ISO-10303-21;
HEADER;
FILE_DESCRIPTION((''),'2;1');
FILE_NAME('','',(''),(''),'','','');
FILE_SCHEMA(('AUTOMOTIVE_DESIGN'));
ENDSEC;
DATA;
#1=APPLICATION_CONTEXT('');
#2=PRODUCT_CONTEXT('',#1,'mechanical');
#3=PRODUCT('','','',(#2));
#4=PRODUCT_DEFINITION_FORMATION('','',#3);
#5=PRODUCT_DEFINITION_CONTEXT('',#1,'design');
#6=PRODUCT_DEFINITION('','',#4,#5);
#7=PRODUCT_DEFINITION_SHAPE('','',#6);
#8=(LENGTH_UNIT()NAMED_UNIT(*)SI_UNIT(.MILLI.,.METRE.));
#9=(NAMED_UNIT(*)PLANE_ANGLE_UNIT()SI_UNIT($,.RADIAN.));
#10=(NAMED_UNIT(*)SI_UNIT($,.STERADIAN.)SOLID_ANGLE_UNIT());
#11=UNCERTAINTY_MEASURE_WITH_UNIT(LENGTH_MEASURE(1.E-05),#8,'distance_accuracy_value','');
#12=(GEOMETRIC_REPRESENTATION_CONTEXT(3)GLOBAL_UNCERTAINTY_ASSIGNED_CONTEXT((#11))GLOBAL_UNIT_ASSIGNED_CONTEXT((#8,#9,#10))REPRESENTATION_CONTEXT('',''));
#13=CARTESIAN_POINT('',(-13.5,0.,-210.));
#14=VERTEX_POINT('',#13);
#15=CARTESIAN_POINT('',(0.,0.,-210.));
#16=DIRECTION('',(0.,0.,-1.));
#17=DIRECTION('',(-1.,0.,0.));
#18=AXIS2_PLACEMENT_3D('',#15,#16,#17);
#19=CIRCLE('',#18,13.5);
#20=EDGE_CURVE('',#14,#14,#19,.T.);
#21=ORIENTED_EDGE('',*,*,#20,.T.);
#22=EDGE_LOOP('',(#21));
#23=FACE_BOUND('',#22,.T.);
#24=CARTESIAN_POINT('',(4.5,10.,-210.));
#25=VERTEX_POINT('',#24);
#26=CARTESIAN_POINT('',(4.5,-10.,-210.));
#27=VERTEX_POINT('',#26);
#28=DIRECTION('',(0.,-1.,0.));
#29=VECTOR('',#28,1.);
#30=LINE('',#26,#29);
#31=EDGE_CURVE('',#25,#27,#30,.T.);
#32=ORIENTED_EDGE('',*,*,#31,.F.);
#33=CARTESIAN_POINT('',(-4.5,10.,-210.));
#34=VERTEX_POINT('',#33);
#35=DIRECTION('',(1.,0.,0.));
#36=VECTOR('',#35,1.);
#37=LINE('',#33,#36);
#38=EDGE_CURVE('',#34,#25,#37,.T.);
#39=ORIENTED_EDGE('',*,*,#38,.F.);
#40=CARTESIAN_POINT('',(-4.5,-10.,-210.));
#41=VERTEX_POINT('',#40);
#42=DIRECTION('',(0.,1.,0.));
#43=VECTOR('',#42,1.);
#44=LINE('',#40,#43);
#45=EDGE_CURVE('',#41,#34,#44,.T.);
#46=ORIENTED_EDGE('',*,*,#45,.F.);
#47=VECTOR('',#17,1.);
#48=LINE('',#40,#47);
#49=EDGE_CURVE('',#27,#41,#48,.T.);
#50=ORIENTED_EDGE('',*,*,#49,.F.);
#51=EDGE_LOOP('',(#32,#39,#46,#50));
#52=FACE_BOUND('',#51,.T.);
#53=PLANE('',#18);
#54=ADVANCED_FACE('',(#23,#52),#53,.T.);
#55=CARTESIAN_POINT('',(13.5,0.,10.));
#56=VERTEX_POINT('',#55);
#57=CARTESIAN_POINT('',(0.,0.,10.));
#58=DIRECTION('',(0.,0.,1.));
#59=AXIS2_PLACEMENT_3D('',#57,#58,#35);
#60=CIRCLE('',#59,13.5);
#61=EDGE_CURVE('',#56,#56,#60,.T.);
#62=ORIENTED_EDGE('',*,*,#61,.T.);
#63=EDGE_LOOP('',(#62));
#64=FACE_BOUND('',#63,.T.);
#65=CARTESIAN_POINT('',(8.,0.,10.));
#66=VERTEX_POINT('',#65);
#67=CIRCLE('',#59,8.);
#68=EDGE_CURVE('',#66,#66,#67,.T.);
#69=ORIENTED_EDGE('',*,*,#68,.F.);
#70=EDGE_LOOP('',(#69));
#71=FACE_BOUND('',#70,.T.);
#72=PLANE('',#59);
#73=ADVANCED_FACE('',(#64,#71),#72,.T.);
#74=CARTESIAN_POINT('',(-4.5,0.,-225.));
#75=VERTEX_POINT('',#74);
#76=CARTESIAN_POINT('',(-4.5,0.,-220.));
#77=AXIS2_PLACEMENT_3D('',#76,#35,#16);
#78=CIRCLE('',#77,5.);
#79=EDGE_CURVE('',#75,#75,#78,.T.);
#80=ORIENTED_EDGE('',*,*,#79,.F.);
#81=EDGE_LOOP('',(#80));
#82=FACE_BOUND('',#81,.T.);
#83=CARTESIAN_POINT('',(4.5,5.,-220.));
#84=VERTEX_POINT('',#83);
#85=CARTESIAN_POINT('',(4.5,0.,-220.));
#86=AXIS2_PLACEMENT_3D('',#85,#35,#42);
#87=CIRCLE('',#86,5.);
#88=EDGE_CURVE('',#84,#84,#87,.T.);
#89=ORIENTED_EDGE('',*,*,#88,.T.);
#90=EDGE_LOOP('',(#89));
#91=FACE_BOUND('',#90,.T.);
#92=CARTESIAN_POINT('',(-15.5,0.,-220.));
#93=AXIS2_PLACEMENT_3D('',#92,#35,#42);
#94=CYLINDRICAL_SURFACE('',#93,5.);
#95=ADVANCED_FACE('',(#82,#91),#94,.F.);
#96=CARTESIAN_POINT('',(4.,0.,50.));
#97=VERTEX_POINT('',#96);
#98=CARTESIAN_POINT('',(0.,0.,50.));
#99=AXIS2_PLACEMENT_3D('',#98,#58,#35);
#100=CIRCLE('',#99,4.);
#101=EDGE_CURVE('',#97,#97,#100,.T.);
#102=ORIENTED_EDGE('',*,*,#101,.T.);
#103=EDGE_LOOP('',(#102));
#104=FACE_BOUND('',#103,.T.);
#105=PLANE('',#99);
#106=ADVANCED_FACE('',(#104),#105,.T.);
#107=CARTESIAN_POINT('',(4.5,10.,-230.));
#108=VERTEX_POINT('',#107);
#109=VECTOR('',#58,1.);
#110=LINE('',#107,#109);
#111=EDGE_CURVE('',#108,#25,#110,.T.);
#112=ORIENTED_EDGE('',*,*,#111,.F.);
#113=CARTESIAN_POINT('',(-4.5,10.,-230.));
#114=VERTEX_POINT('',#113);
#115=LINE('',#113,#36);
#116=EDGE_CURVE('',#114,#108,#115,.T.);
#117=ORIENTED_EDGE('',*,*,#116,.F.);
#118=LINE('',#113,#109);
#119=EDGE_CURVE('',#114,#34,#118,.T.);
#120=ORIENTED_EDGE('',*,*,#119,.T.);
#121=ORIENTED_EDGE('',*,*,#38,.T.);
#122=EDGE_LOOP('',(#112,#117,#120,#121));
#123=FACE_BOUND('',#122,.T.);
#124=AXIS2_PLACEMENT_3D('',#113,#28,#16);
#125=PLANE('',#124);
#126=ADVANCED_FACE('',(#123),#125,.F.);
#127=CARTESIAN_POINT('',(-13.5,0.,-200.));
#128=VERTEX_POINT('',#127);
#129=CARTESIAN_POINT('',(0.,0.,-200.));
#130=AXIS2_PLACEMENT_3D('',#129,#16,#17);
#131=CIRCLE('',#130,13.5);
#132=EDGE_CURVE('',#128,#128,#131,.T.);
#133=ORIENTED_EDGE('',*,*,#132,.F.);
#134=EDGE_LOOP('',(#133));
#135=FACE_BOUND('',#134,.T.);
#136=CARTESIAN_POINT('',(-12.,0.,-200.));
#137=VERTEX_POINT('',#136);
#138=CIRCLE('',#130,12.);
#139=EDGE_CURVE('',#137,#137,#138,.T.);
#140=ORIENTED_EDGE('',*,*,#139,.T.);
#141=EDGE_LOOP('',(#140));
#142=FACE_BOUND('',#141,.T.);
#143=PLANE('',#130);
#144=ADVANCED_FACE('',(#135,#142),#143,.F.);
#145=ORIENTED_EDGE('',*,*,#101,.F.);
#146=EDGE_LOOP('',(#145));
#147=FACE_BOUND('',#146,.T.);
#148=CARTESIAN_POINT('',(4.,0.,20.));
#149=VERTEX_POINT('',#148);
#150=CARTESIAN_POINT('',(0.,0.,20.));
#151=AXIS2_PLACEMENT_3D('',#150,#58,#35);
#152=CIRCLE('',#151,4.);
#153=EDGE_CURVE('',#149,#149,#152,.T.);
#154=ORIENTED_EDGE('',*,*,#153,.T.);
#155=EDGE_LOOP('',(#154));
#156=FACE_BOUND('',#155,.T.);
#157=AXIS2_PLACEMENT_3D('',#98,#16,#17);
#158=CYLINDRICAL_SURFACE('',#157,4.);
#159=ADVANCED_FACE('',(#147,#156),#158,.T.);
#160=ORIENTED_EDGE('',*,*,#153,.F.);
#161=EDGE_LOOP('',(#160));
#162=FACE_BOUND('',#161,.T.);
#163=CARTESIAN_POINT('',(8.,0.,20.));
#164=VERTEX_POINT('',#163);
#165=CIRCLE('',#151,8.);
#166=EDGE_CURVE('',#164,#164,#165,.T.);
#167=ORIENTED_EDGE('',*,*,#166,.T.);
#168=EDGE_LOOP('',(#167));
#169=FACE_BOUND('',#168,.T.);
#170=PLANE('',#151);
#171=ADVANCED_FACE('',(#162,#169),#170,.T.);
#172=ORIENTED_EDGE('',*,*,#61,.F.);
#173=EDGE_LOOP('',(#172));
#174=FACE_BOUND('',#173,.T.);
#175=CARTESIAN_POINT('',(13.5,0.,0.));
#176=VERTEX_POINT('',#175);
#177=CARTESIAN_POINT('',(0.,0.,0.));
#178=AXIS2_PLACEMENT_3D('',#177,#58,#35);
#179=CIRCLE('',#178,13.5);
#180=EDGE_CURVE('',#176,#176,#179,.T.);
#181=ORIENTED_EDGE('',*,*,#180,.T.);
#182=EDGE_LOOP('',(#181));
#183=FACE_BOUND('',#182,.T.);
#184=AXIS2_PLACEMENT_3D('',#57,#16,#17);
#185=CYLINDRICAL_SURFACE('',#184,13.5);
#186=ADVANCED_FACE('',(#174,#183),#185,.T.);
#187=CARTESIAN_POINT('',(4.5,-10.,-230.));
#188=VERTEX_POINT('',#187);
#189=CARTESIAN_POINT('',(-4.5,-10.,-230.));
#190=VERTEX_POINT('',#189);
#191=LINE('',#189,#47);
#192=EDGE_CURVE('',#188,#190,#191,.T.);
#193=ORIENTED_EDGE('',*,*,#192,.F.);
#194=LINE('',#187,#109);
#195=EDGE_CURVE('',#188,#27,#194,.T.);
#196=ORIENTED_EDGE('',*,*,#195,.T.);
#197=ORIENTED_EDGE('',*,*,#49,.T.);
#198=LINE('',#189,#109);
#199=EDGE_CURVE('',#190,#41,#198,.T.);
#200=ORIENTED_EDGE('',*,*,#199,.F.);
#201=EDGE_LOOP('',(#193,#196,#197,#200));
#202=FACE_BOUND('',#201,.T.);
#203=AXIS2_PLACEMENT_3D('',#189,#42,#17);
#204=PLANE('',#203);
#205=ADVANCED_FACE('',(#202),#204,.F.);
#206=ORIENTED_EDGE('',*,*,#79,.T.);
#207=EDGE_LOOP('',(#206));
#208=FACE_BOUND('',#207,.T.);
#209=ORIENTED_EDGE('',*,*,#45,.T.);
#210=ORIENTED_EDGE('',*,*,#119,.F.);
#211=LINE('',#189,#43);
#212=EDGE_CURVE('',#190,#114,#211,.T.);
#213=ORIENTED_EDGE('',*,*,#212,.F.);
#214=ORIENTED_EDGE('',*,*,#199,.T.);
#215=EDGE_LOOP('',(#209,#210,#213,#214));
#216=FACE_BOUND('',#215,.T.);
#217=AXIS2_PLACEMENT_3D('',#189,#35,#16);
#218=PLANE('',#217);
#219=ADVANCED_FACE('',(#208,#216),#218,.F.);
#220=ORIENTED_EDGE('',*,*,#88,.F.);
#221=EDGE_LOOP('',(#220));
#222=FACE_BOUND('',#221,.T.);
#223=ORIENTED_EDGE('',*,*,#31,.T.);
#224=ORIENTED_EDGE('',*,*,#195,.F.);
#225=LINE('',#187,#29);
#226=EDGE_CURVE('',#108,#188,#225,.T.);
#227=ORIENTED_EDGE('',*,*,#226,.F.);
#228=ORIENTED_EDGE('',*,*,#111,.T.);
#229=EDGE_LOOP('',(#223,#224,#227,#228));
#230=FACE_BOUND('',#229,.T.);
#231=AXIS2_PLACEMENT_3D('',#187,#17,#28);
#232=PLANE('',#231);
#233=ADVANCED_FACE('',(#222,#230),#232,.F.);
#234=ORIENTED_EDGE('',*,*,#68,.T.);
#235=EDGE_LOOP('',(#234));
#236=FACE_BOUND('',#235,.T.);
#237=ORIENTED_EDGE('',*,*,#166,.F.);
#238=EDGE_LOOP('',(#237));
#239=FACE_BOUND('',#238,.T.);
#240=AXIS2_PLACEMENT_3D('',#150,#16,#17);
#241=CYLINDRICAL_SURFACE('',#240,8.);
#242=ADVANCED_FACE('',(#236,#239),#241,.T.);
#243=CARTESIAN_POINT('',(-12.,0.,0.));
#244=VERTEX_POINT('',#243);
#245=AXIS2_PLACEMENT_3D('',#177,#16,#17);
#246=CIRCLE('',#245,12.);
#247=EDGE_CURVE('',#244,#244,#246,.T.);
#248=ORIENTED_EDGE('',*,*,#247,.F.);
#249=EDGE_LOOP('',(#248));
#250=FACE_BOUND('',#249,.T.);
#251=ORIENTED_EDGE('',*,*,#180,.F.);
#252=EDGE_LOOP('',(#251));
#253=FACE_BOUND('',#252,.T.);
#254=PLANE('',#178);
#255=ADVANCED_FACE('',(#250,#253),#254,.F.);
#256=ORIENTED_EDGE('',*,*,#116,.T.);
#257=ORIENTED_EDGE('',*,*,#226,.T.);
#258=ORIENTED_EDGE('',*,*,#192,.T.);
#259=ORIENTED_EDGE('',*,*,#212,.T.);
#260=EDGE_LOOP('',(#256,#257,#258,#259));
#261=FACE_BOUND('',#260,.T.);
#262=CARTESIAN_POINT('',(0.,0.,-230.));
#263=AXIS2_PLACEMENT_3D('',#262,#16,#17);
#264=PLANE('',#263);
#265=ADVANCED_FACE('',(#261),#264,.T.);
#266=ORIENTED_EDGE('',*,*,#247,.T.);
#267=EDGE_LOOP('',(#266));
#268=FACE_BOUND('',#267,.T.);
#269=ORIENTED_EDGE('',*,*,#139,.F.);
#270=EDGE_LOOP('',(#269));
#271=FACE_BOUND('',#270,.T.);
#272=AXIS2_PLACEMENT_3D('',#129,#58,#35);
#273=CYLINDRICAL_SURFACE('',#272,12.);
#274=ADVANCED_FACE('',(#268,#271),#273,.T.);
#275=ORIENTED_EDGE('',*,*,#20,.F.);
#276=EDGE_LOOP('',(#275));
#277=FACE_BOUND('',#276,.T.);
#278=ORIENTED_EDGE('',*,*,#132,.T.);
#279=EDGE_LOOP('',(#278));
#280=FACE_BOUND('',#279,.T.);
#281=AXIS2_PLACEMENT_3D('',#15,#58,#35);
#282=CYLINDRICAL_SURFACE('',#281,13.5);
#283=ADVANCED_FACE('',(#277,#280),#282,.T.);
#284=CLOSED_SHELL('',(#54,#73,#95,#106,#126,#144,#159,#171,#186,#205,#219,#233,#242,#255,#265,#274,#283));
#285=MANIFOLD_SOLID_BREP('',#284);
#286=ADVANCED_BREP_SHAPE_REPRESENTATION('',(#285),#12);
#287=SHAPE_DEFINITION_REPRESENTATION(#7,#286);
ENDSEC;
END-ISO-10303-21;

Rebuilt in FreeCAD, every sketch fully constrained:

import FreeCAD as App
import Part
import Sketcher

V = App.Vector
Q = App.Units.Quantity


def add_polygon(sketch, points):
    """Adds a closed chain of lines whose ends are joined by coincident constraints."""
    first, n = sketch.GeometryCount, len(points)
    for a, b in zip(points, points[1:] + points[:1]):
        sketch.addGeometry(Part.LineSegment(App.Vector(*a, 0), App.Vector(*b, 0)), False)
    for i in range(n):
        sketch.addConstraint(Sketcher.Constraint("Coincident", first + i, 2, first + (i + 1) % n, 1))

doc = App.newDocument("Part")
body = doc.addObject("PartDesign::Body", "Body")

sketch1 = doc.addObject("Sketcher::SketchObject", "Sketch")
body.addObject(sketch1)
sketch1.AttachmentSupport = (doc.XY_Plane, [""])
sketch1.MapMode = "FlatFace"
sketch1.addGeometry(Part.Circle(V(0, 0, 0), V(0, 0, 1), 13.5), False)
sketch1.addConstraint([
    Sketcher.Constraint("Coincident", 0, 3, -1, 1),
    Sketcher.Constraint("Diameter", 0, Q("27 mm")),
])
pad1 = doc.addObject("PartDesign::Pad", "Pad")
body.addObject(pad1)
pad1.Profile = sketch1
pad1.Length = 10

sketch2 = doc.addObject("Sketcher::SketchObject", "Sketch001")
body.addObject(sketch2)
sketch2.AttachmentSupport = (doc.XY_Plane, [""])
sketch2.MapMode = "FlatFace"
sketch2.AttachmentOffset = App.Placement(V(0, 0, 10), App.Rotation())
sketch2.addGeometry(Part.Circle(V(0, 0, 0), V(0, 0, 1), 8), False)
sketch2.addConstraint([
    Sketcher.Constraint("Coincident", 0, 3, -1, 1),
    Sketcher.Constraint("Diameter", 0, Q("16 mm")),
])
pad2 = doc.addObject("PartDesign::Pad", "Pad001")
body.addObject(pad2)
pad2.Profile = sketch2
pad2.Length = 10

sketch3 = doc.addObject("Sketcher::SketchObject", "Sketch002")
body.addObject(sketch3)
sketch3.AttachmentSupport = (doc.XY_Plane, [""])
sketch3.MapMode = "FlatFace"
sketch3.addGeometry(Part.Circle(V(0, 0, 0), V(0, 0, 1), 12), False)
sketch3.addConstraint([
    Sketcher.Constraint("Coincident", 0, 3, -1, 1),
    Sketcher.Constraint("Diameter", 0, Q("24 mm")),
])
pad3 = doc.addObject("PartDesign::Pad", "Pad002")
body.addObject(pad3)
pad3.Profile = sketch3
pad3.Length = 200
pad3.Reversed = True

sketch4 = doc.addObject("Sketcher::SketchObject", "Sketch003")
body.addObject(sketch4)
sketch4.AttachmentSupport = (doc.XY_Plane, [""])
sketch4.MapMode = "FlatFace"
sketch4.AttachmentOffset = App.Placement(V(0, 0, -210), App.Rotation())
sketch4.addGeometry(Part.Circle(V(0, 0, 0), V(0, 0, 1), 13.5), False)
sketch4.addConstraint([
    Sketcher.Constraint("Coincident", 0, 3, -1, 1),
    Sketcher.Constraint("Diameter", 0, Q("27 mm")),
])
pad4 = doc.addObject("PartDesign::Pad", "Pad003")
body.addObject(pad4)
pad4.Profile = sketch4
pad4.Length = 10

sketch5 = doc.addObject("Sketcher::SketchObject", "Sketch004")
body.addObject(sketch5)
sketch5.AttachmentSupport = (doc.XY_Plane, [""])
sketch5.MapMode = "FlatFace"
sketch5.AttachmentOffset = App.Placement(V(0, 0, -210), App.Rotation())
add_polygon(sketch5, [(4.5, 10), (4.5, -10), (-4.5, -10), (-4.5, 10)])
sketch5.addConstraint([
    Sketcher.Constraint("Vertical", 0),
    Sketcher.Constraint("Horizontal", 1),
    Sketcher.Constraint("Vertical", 2),
    Sketcher.Constraint("Horizontal", 3),
    Sketcher.Constraint("Symmetric", 0, 2, 2, 2, -1, 1),
    Sketcher.Constraint("DistanceX", 1, 2, 1, 1, Q("9 mm")),
    Sketcher.Constraint("DistanceY", 0, 2, 0, 1, Q("20 mm")),
])
pad5 = doc.addObject("PartDesign::Pad", "Pad004")
body.addObject(pad5)
pad5.Profile = sketch5
pad5.Length = 20
pad5.Reversed = True

sketch6 = doc.addObject("Sketcher::SketchObject", "Sketch005")
body.addObject(sketch6)
sketch6.AttachmentSupport = (doc.YZ_Plane, [""])
sketch6.MapMode = "FlatFace"
sketch6.AttachmentOffset = App.Placement(V(0, 0, 4.5), App.Rotation())
sketch6.addGeometry(Part.Circle(V(0, -220, 0), V(0, 0, 1), 5), False)
sketch6.addConstraint([
    Sketcher.Constraint("PointOnObject", 0, 3, -2),
    Sketcher.Constraint("Diameter", 0, Q("10 mm")),
    Sketcher.Constraint("DistanceY", 0, 3, -1, 1, Q("220 mm")),
])
pocket1 = doc.addObject("PartDesign::Pocket", "Pocket")
body.addObject(pocket1)
pocket1.Profile = sketch6
pocket1.Length = 20

sketch7 = doc.addObject("Sketcher::SketchObject", "Sketch006")
body.addObject(sketch7)
sketch7.AttachmentSupport = (doc.XY_Plane, [""])
sketch7.MapMode = "FlatFace"
sketch7.AttachmentOffset = App.Placement(V(0, 0, 20), App.Rotation())
sketch7.addGeometry(Part.Circle(V(0, 0, 0), V(0, 0, 1), 4), False)
sketch7.addConstraint([
    Sketcher.Constraint("Coincident", 0, 3, -1, 1),
    Sketcher.Constraint("Diameter", 0, Q("8 mm")),
])
pad6 = doc.addObject("PartDesign::Pad", "Pad005")
body.addObject(pad6)
pad6.Profile = sketch7
pad6.Length = 30

doc.recompute()
